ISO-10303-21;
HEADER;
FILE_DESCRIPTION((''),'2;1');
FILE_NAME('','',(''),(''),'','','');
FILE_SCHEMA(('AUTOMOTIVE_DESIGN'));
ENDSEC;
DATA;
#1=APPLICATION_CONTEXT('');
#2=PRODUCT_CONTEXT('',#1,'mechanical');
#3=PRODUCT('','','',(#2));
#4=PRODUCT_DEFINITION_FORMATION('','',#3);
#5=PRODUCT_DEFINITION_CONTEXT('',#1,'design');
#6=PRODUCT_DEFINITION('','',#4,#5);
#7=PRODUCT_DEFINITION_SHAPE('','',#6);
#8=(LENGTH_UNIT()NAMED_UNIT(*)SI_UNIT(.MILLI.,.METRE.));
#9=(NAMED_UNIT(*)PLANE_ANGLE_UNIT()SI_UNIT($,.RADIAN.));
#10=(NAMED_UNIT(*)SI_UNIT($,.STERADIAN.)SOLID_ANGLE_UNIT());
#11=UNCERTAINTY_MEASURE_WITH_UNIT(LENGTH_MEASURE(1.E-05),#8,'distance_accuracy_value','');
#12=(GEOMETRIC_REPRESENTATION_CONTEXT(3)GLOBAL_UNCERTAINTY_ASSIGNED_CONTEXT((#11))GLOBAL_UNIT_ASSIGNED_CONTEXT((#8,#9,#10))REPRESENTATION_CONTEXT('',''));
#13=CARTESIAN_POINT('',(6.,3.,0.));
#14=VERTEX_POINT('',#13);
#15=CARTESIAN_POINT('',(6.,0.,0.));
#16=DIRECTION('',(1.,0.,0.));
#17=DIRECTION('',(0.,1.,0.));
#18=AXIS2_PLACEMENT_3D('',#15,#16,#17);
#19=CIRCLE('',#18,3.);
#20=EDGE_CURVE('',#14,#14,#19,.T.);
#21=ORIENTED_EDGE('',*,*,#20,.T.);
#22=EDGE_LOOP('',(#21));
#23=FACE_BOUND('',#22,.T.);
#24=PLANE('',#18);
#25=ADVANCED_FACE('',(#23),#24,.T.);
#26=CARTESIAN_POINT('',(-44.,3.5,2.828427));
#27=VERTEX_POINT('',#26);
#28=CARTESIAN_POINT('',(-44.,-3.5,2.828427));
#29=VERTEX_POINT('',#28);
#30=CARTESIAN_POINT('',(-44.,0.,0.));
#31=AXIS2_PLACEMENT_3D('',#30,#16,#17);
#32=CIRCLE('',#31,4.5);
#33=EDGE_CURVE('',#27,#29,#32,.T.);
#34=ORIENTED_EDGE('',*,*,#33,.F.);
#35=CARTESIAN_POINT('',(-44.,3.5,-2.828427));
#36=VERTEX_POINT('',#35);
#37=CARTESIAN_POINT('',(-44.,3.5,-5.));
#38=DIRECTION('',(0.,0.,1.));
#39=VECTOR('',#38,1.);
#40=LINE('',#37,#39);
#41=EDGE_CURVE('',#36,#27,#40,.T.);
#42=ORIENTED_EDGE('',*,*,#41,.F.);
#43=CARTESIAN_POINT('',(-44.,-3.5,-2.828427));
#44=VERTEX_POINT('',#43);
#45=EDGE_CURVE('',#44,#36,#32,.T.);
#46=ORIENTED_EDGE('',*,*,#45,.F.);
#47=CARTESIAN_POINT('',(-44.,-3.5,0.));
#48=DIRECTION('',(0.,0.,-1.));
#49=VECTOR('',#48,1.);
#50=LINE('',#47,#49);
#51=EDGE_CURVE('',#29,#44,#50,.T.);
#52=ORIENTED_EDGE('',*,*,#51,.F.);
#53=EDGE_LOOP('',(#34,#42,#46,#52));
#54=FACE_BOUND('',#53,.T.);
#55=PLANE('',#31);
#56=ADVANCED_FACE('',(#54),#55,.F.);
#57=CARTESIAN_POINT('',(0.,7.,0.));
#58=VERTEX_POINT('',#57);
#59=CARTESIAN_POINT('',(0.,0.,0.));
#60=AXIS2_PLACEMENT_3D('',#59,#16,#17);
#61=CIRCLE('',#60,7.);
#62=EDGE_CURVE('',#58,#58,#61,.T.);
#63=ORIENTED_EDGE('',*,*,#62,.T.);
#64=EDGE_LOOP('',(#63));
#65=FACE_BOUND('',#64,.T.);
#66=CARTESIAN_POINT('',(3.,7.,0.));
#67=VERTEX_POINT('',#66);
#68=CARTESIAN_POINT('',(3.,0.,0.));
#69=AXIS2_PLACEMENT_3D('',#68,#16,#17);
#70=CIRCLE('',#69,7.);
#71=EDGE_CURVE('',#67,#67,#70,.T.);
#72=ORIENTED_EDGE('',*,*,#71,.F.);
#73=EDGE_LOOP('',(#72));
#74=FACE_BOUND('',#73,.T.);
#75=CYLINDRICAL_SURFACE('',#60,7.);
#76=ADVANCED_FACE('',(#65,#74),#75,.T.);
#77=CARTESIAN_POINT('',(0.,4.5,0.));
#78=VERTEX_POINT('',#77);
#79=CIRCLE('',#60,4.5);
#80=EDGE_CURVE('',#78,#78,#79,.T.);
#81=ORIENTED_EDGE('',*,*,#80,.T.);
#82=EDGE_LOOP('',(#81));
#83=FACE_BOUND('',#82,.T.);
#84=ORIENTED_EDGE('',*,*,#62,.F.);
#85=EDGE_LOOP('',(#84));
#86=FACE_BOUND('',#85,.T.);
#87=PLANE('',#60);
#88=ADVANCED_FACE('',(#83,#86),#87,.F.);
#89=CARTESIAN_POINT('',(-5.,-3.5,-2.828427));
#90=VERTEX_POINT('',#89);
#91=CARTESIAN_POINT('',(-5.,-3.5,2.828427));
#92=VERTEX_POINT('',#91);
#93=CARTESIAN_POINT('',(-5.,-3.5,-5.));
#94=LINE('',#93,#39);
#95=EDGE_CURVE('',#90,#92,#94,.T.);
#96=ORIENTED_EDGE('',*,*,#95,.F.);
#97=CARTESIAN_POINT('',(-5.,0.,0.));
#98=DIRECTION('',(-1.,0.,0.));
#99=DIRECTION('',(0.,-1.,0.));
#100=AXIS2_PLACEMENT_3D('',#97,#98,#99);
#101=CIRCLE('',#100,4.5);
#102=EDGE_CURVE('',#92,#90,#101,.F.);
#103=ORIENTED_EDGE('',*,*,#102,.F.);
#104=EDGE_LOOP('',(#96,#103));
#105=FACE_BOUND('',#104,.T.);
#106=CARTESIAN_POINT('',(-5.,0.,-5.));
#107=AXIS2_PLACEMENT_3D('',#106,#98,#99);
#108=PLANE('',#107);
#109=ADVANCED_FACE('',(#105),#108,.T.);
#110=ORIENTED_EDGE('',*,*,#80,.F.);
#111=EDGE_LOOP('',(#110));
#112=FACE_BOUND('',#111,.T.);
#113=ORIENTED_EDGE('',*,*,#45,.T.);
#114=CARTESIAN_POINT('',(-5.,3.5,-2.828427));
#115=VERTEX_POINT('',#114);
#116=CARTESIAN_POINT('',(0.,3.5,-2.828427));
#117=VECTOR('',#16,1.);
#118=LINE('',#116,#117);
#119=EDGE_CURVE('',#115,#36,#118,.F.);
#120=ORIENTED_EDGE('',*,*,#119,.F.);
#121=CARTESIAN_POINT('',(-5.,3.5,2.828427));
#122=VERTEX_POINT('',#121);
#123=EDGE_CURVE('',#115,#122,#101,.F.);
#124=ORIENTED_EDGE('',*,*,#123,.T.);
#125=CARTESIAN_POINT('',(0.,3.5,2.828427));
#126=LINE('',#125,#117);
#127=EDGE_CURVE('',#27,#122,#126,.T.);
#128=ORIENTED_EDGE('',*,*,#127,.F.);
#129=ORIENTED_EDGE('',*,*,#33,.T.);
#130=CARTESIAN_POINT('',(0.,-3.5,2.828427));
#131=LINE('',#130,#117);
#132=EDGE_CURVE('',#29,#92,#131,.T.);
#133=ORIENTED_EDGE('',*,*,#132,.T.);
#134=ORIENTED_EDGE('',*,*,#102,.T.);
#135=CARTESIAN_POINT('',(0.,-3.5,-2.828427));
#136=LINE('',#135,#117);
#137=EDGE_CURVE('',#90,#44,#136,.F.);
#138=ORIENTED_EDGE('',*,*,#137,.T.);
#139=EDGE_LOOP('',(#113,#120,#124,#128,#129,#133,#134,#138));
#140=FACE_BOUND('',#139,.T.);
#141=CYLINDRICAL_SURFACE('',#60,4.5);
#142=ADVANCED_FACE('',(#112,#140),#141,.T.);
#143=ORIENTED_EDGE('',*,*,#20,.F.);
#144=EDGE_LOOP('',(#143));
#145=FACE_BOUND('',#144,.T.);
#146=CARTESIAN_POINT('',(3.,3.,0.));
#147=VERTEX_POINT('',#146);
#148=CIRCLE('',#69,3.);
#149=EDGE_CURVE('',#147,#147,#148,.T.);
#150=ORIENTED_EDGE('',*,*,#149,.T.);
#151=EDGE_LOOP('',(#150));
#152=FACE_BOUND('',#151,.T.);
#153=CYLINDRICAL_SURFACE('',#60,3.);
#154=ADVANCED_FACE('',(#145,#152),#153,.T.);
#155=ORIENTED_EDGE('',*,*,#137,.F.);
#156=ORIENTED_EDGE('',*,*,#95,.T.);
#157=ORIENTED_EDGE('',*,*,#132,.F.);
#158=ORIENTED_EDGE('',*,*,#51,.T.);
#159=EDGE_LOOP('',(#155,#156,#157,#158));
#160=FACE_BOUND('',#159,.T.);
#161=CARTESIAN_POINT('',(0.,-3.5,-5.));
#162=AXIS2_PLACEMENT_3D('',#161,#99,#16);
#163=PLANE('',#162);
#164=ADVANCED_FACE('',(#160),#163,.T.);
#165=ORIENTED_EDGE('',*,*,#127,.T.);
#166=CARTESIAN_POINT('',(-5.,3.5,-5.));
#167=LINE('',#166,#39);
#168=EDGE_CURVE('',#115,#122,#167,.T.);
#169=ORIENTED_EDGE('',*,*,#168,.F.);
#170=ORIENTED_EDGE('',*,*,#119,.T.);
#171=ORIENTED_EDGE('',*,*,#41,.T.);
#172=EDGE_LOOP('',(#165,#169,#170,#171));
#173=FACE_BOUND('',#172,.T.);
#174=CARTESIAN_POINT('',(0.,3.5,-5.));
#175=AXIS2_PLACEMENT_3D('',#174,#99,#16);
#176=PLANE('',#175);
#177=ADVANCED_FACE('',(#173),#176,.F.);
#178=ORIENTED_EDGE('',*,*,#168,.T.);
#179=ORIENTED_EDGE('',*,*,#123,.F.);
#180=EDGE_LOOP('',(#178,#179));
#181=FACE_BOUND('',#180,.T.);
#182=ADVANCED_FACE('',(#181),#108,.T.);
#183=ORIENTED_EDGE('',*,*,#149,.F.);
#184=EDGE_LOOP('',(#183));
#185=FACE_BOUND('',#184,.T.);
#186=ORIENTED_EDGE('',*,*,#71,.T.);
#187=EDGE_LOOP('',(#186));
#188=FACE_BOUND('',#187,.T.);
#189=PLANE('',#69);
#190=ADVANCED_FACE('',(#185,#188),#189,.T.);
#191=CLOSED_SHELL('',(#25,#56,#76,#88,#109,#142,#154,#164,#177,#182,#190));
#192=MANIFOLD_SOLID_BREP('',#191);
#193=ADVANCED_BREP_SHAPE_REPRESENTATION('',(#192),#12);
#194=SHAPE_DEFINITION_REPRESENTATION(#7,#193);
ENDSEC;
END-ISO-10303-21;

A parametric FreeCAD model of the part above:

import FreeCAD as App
import Part
import Sketcher

doc = App.newDocument("Part")
body = doc.addObject("PartDesign::Body", "Body")

sketch1 = body.newObject("Sketcher::SketchObject", "Sketch")
sketch1.AttachmentSupport = (doc.getObject("XY_Plane"), [""])
sketch1.MapMode = "FlatFace"
sketch1.addGeometry([
    Part.LineSegment(App.Vector(-44, 4.5, 0), App.Vector(-44, 0, 0)),
    Part.LineSegment(App.Vector(-44, 0, 0), App.Vector(6, 0, 0)),
    Part.LineSegment(App.Vector(6, 0, 0), App.Vector(6, 3, 0)),
    Part.LineSegment(App.Vector(6, 3, 0), App.Vector(3, 3, 0)),
    Part.LineSegment(App.Vector(3, 3, 0), App.Vector(3, 7, 0)),
    Part.LineSegment(App.Vector(3, 7, 0), App.Vector(0, 7, 0)),
    Part.LineSegment(App.Vector(0, 7, 0), App.Vector(0, 4.5, 0)),
    Part.LineSegment(App.Vector(0, 4.5, 0), App.Vector(-44, 4.5, 0)),
], False)
sketch1.addConstraint([
    Sketcher.Constraint("Coincident", 0, 2, 1, 1),
    Sketcher.Constraint("Coincident", 1, 2, 2, 1),
    Sketcher.Constraint("Coincident", 2, 2, 3, 1),
    Sketcher.Constraint("Coincident", 3, 2, 4, 1),
    Sketcher.Constraint("Coincident", 4, 2, 5, 1),
    Sketcher.Constraint("Coincident", 5, 2, 6, 1),
    Sketcher.Constraint("Coincident", 6, 2, 7, 1),
    Sketcher.Constraint("Coincident", 7, 2, 0, 1),
    Sketcher.Constraint("Vertical", 0),
    Sketcher.Constraint("Horizontal", 1),
    Sketcher.Constraint("Vertical", 2),
    Sketcher.Constraint("Horizontal", 3),
    Sketcher.Constraint("Vertical", 4),
    Sketcher.Constraint("Horizontal", 5),
    Sketcher.Constraint("Vertical", 6),
    Sketcher.Constraint("Horizontal", 7),
    Sketcher.Constraint("PointOnObject", 0, 2, -1),
    Sketcher.Constraint("PointOnObject", 5, 2, -2),
    Sketcher.Constraint("Equal", 3, 5),
    Sketcher.Constraint("Equal", 5, 2),
    Sketcher.Constraint("DistanceX", 1, 1, 1, 2, 50.0),
    Sketcher.Constraint("DistanceX", 3, 2, 3, 1, 3.0),
    Sketcher.Constraint("DistanceY", 4, 1, 4, 2, 4.0),
    Sketcher.Constraint("DistanceY", 0, 2, 0, 1, 4.5),
])
revolution = body.newObject("PartDesign::Revolution", "Revolution")
revolution.Profile = sketch1
revolution.ReferenceAxis = (sketch1, ["H_Axis"])
revolution.Angle = 360

sketch2 = body.newObject("Sketcher::SketchObject", "Sketch001")
sketch2.AttachmentSupport = (doc.getObject("XY_Plane"), [""])
sketch2.MapMode = "FlatFace"
sketch2.addGeometry([
    Part.LineSegment(App.Vector(-44, 4.5, 0), App.Vector(-44, 3.5, 0)),
    Part.LineSegment(App.Vector(-44, 3.5, 0), App.Vector(-5, 3.5, 0)),
    Part.LineSegment(App.Vector(-5, 3.5, 0), App.Vector(-5, 4.5, 0)),
    Part.LineSegment(App.Vector(-5, 4.5, 0), App.Vector(-44, 4.5, 0)),
    Part.LineSegment(App.Vector(-44, -3.5, 0), App.Vector(-44, -4.5, 0)),
    Part.LineSegment(App.Vector(-44, -4.5, 0), App.Vector(-5, -4.5, 0)),
    Part.LineSegment(App.Vector(-5, -4.5, 0), App.Vector(-5, -3.5, 0)),
    Part.LineSegment(App.Vector(-5, -3.5, 0), App.Vector(-44, -3.5, 0)),
], False)
sketch2.addConstraint([
    Sketcher.Constraint("Coincident", 0, 2, 1, 1),
    Sketcher.Constraint("Coincident", 1, 2, 2, 1),
    Sketcher.Constraint("Coincident", 2, 2, 3, 1),
    Sketcher.Constraint("Coincident", 3, 2, 0, 1),
    Sketcher.Constraint("Coincident", 4, 2, 5, 1),
    Sketcher.Constraint("Coincident", 5, 2, 6, 1),
    Sketcher.Constraint("Coincident", 6, 2, 7, 1),
    Sketcher.Constraint("Coincident", 7, 2, 4, 1),
    Sketcher.Constraint("Vertical", 0),
    Sketcher.Constraint("Horizontal", 1),
    Sketcher.Constraint("Vertical", 2),
    Sketcher.Constraint("Horizontal", 3),
    Sketcher.Constraint("Vertical", 4),
    Sketcher.Constraint("Horizontal", 5),
    Sketcher.Constraint("Vertical", 6),
    Sketcher.Constraint("Horizontal", 7),
    Sketcher.Constraint("Symmetric", 3, 2, 4, 2, -1),
    Sketcher.Constraint("Symmetric", 1, 2, 6, 2, -1),
    Sketcher.Constraint("DistanceX", 1, 1, 1, 2, 39.0),
    Sketcher.Constraint("DistanceY", 0, 2, 0, 1, 1.0),
    Sketcher.Constraint("DistanceX", 0, 2, -1, 1, 44.0),
    Sketcher.Constraint("DistanceY", 4, 2, 0, 2, 8.0),
])
pocket1 = body.newObject("PartDesign::Pocket", "Pocket")
pocket1.Profile = sketch2
pocket1.Length = 10
pocket1.Midplane = True

doc.recompute()
